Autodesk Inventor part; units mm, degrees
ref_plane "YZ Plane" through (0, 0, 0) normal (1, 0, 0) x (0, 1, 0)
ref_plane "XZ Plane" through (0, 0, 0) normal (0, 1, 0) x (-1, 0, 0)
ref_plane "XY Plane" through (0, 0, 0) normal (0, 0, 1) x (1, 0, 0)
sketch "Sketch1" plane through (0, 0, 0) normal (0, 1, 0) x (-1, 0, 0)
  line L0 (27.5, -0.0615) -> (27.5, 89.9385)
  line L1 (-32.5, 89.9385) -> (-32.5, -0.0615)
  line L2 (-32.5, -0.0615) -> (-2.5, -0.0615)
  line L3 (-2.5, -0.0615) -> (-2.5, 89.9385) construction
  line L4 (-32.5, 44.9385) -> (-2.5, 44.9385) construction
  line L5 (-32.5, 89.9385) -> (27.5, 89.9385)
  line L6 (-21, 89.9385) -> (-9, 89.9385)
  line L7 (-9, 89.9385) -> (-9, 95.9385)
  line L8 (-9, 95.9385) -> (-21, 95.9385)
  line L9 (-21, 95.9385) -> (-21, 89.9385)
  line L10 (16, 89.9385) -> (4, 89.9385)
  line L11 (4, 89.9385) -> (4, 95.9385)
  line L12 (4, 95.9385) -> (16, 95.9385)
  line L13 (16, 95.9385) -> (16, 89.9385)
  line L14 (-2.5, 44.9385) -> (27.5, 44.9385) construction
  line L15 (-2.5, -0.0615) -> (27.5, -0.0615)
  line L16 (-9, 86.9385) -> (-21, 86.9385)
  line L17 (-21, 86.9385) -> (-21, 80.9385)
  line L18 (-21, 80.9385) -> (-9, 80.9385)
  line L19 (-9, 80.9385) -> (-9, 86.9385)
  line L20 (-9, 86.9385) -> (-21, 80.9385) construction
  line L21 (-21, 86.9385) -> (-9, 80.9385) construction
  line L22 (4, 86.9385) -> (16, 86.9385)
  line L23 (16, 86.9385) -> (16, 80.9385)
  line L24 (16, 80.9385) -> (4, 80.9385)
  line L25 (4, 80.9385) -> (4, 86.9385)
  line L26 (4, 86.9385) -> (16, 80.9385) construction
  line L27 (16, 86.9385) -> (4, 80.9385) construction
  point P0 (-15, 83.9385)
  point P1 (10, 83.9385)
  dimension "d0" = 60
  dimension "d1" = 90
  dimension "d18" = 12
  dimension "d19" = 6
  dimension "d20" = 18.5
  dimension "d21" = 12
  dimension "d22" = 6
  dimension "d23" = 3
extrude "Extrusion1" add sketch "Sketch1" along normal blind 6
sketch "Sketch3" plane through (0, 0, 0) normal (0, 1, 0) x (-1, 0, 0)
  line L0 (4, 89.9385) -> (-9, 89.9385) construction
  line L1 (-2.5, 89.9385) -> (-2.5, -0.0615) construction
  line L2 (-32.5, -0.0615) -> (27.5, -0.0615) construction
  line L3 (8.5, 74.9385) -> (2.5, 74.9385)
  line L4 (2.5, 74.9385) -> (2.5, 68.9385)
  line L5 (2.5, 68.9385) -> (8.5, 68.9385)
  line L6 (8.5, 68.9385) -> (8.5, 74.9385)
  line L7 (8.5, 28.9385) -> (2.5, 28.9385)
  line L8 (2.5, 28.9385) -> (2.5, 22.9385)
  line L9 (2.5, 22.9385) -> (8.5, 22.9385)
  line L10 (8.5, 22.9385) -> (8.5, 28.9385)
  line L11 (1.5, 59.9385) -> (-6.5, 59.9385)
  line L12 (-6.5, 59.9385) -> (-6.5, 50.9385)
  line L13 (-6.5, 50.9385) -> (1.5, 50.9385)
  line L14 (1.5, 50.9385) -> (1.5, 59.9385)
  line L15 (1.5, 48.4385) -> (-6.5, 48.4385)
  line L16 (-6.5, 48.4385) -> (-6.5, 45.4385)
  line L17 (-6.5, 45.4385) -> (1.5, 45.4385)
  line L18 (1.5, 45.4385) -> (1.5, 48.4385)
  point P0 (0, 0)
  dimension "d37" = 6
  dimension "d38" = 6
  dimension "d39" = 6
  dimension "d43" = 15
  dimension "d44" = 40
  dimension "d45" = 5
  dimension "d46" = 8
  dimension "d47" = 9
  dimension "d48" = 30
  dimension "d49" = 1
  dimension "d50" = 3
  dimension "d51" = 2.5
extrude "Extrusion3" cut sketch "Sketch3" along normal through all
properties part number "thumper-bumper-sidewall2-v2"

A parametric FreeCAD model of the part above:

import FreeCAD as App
import Part
import Sketcher
Q = App.Units.Quantity

doc = App.newDocument("Part")
params = doc.addObject("Spreadsheet::Sheet", "Params")
for row, (alias, value) in enumerate([
    ("sketch1_width", "12 mm"),
    ("sketch1_width2", "60 mm"),
    ("sketch1_height", "90 mm"),
    ("sketch1_height2", "6 mm"),
    ("sketch1_width3", "13 mm"),
    ("pad1_length", "6 mm"),
    ("sketch2_width", "6 mm"),
    ("sketch2_width2", "8 mm"),
    ("sketch2_height", "9 mm"),
    ("sketch2_height2", "3 mm"),
], start=1):
    params.set(f"A{row}", alias)
    params.set(f"B{row}", "=" + value)
    params.setAlias(f"B{row}", alias)

body = doc.addObject("PartDesign::Body", "Body")

# Sketch on XZ plane
sketch1 = body.newObject("Sketcher::SketchObject", "Sketch")
sketch1.AttachmentSupport = (doc.getObject("XZ_Plane"), [""])
sketch1.MapMode = "FlatFace"
sketch1.addGeometry(Part.LineSegment(App.Vector(-28, 0, 0), App.Vector(-28, 90, 0)), False)
sketch1.addGeometry(Part.LineSegment(App.Vector(-28, 90, 0), App.Vector(-16, 90, 0)), False)
sketch1.addGeometry(Part.LineSegment(App.Vector(-16, 90, 0), App.Vector(-16, 96, 0)), False)
sketch1.addGeometry(Part.LineSegment(App.Vector(-16, 96, 0), App.Vector(-4, 96, 0)), False)
sketch1.addGeometry(Part.LineSegment(App.Vector(-4, 96, 0), App.Vector(-4, 90, 0)), False)
sketch1.addGeometry(Part.LineSegment(App.Vector(-4, 90, 0), App.Vector(9, 90, 0)), False)
sketch1.addGeometry(Part.LineSegment(App.Vector(9, 90, 0), App.Vector(9, 96, 0)), False)
sketch1.addGeometry(Part.LineSegment(App.Vector(9, 96, 0), App.Vector(21, 96, 0)), False)
sketch1.addGeometry(Part.LineSegment(App.Vector(21, 96, 0), App.Vector(21, 90, 0)), False)
sketch1.addGeometry(Part.LineSegment(App.Vector(21, 90, 0), App.Vector(32, 90, 0)), False)
sketch1.addGeometry(Part.LineSegment(App.Vector(32, 90, 0), App.Vector(32, 0, 0)), False)
sketch1.addGeometry(Part.LineSegment(App.Vector(32, 0, 0), App.Vector(-28, 0, 0)), False)
sketch1.addGeometry(Part.LineSegment(App.Vector(21, 87, 0), App.Vector(9, 87, 0)), False)
sketch1.addGeometry(Part.LineSegment(App.Vector(9, 87, 0), App.Vector(9, 81, 0)), False)
sketch1.addGeometry(Part.LineSegment(App.Vector(9, 81, 0), App.Vector(21, 81, 0)), False)
sketch1.addGeometry(Part.LineSegment(App.Vector(21, 81, 0), App.Vector(21, 87, 0)), False)
sketch1.addGeometry(Part.LineSegment(App.Vector(-4, 81, 0), App.Vector(-4, 87, 0)), False)
sketch1.addGeometry(Part.LineSegment(App.Vector(-4, 87, 0), App.Vector(-16, 87, 0)), False)
sketch1.addGeometry(Part.LineSegment(App.Vector(-16, 87, 0), App.Vector(-16, 81, 0)), False)
sketch1.addGeometry(Part.LineSegment(App.Vector(-16, 81, 0), App.Vector(-4, 81, 0)), False)
sketch1.addConstraint(Sketcher.Constraint("Coincident", 0, 2, 1, 1))
sketch1.addConstraint(Sketcher.Constraint("Coincident", 1, 2, 2, 1))
sketch1.addConstraint(Sketcher.Constraint("Coincident", 2, 2, 3, 1))
sketch1.addConstraint(Sketcher.Constraint("Coincident", 3, 2, 4, 1))
sketch1.addConstraint(Sketcher.Constraint("Coincident", 4, 2, 5, 1))
sketch1.addConstraint(Sketcher.Constraint("Coincident", 5, 2, 6, 1))
sketch1.addConstraint(Sketcher.Constraint("Coincident", 6, 2, 7, 1))
sketch1.addConstraint(Sketcher.Constraint("Coincident", 7, 2, 8, 1))
sketch1.addConstraint(Sketcher.Constraint("Coincident", 8, 2, 9, 1))
sketch1.addConstraint(Sketcher.Constraint("Coincident", 9, 2, 10, 1))
sketch1.addConstraint(Sketcher.Constraint("Coincident", 10, 2, 11, 1))
sketch1.addConstraint(Sketcher.Constraint("Coincident", 11, 2, 0, 1))
sketch1.addConstraint(Sketcher.Constraint("Coincident", 12, 2, 13, 1))
sketch1.addConstraint(Sketcher.Constraint("Coincident", 13, 2, 14, 1))
sketch1.addConstraint(Sketcher.Constraint("Coincident", 14, 2, 15, 1))
sketch1.addConstraint(Sketcher.Constraint("Coincident", 15, 2, 12, 1))
sketch1.addConstraint(Sketcher.Constraint("Coincident", 16, 2, 17, 1))
sketch1.addConstraint(Sketcher.Constraint("Coincident", 17, 2, 18, 1))
sketch1.addConstraint(Sketcher.Constraint("Coincident", 18, 2, 19, 1))
sketch1.addConstraint(Sketcher.Constraint("Coincident", 19, 2, 16, 1))
sketch1.addConstraint(Sketcher.Constraint("Vertical", 0))
sketch1.addConstraint(Sketcher.Constraint("Horizontal", 1))
sketch1.addConstraint(Sketcher.Constraint("Vertical", 2))
sketch1.addConstraint(Sketcher.Constraint("Horizontal", 3))
sketch1.addConstraint(Sketcher.Constraint("Vertical", 4))
sketch1.addConstraint(Sketcher.Constraint("Horizontal", 5))
sketch1.addConstraint(Sketcher.Constraint("Vertical", 6))
sketch1.addConstraint(Sketcher.Constraint("Horizontal", 7))
sketch1.addConstraint(Sketcher.Constraint("Vertical", 8))
sketch1.addConstraint(Sketcher.Constraint("Horizontal", 9))
sketch1.addConstraint(Sketcher.Constraint("Vertical", 10))
sketch1.addConstraint(Sketcher.Constraint("Horizontal", 11))
sketch1.addConstraint(Sketcher.Constraint("Horizontal", 12))
sketch1.addConstraint(Sketcher.Constraint("Vertical", 13))
sketch1.addConstraint(Sketcher.Constraint("Horizontal", 14))
sketch1.addConstraint(Sketcher.Constraint("Vertical", 15))
sketch1.addConstraint(Sketcher.Constraint("Vertical", 16))
sketch1.addConstraint(Sketcher.Constraint("Horizontal", 17))
sketch1.addConstraint(Sketcher.Constraint("Vertical", 18))
sketch1.addConstraint(Sketcher.Constraint("Horizontal", 19))
sketch1.addConstraint(Sketcher.Constraint("Horizontal", 1, 2, 4, 2))
sketch1.addConstraint(Sketcher.Constraint("Horizontal", 3, 2, 6, 2))
sketch1.addConstraint(Sketcher.Constraint("Horizontal", 5, 2, 8, 2))
sketch1.addConstraint(Sketcher.Constraint("Horizontal", 15, 2, 16, 2))
sketch1.addConstraint(Sketcher.Constraint("Horizontal", 14, 2, 18, 2))
sketch1.addConstraint(Sketcher.Constraint("Vertical", 6, 2, 12, 2))
sketch1.addConstraint(Sketcher.Constraint("Vertical", 8, 2, 14, 2))
sketch1.addConstraint(Sketcher.Constraint("Vertical", 4, 2, 16, 2))
sketch1.addConstraint(Sketcher.Constraint("Vertical", 2, 2, 17, 2))
sketch1.addConstraint(Sketcher.Constraint("Equal", 3, 7))
sketch1.addConstraint(Sketcher.Constraint("Equal", 1, 9))
sketch1.addConstraint(Sketcher.Constraint("Equal", 8, 13))
sketch1.addConstraint(Sketcher.Constraint("DistanceX", 3, 1, 3, 2, Q("12 mm")))
sketch1.addConstraint(Sketcher.Constraint("DistanceX", 11, 2, 11, 1, Q("60 mm")))
sketch1.addConstraint(Sketcher.Constraint("DistanceY", 0, 1, 0, 2, Q("90 mm")))
sketch1.addConstraint(Sketcher.Constraint("DistanceY", 2, 1, 2, 2, Q("6 mm")))
sketch1.addConstraint(Sketcher.Constraint("DistanceY", 12, 2, 5, 2, Q("3 mm")))
sketch1.addConstraint(Sketcher.Constraint("DistanceX", 5, 1, 5, 2, Q("13 mm")))
sketch1.addConstraint(Sketcher.Constraint("DistanceX", 1, 2, -1, 1, Q("16 mm")))
sketch1.addConstraint(Sketcher.Constraint("DistanceY", -1, 1, 0, 2, Q("89.9385 mm")))
sketch1.setExpression("Constraints[52]", "Params.sketch1_width")
sketch1.setExpression("Constraints[53]", "Params.sketch1_width2")
sketch1.setExpression("Constraints[54]", "Params.sketch1_height")
sketch1.setExpression("Constraints[55]", "Params.sketch1_height2")
sketch1.setExpression("Constraints[57]", "Params.sketch1_width3")
pad1 = body.newObject("PartDesign::Pad", "Pad")
pad1.Profile = sketch1
pad1.setExpression("Length", "Params.pad1_length")
pad1.Reversed = True

# Sketch on XZ plane
sketch2 = body.newObject("Sketcher::SketchObject", "Sketch001")
sketch2.AttachmentSupport = (doc.getObject("XZ_Plane"), [""])
sketch2.MapMode = "FlatFace"
sketch2.addGeometry(Part.LineSegment(App.Vector(-8.5, 68.9, 0), App.Vector(-8.5, 74.9, 0)), False)
sketch2.addGeometry(Part.LineSegment(App.Vector(-8.5, 74.9, 0), App.Vector(-2.5, 74.9, 0)), False)
sketch2.addGeometry(Part.LineSegment(App.Vector(-2.5, 74.9, 0), App.Vector(-2.5, 68.9, 0)), False)
sketch2.addGeometry(Part.LineSegment(App.Vector(-2.5, 68.9, 0), App.Vector(-8.5, 68.9, 0)), False)
sketch2.addGeometry(Part.LineSegment(App.Vector(-8.5, 22.9, 0), App.Vector(-8.5, 28.9, 0)), False)
sketch2.addGeometry(Part.LineSegment(App.Vector(-8.5, 28.9, 0), App.Vector(-2.5, 28.9, 0)), False)
sketch2.addGeometry(Part.LineSegment(App.Vector(-2.5, 28.9, 0), App.Vector(-2.5, 22.9, 0)), False)
sketch2.addGeometry(Part.LineSegment(App.Vector(-2.5, 22.9, 0), App.Vector(-8.5, 22.9, 0)), False)
sketch2.addGeometry(Part.LineSegment(App.Vector(-1.5, 50.9, 0), App.Vector(-1.5, 59.9, 0)), False)
sketch2.addGeometry(Part.LineSegment(App.Vector(-1.5, 59.9, 0), App.Vector(6.5, 59.9, 0)), False)
sketch2.addGeometry(Part.LineSegment(App.Vector(6.5, 59.9, 0), App.Vector(6.5, 50.9, 0)), False)
sketch2.addGeometry(Part.LineSegment(App.Vector(6.5, 50.9, 0), App.Vector(-1.5, 50.9, 0)), False)
sketch2.addGeometry(Part.LineSegment(App.Vector(-1.5, 45.4, 0), App.Vector(-1.5, 48.4, 0)), False)
sketch2.addGeometry(Part.LineSegment(App.Vector(-1.5, 48.4, 0), App.Vector(6.5, 48.4, 0)), False)
sketch2.addGeometry(Part.LineSegment(App.Vector(6.5, 48.4, 0), App.Vector(6.5, 45.4, 0)), False)
sketch2.addGeometry(Part.LineSegment(App.Vector(6.5, 45.4, 0), App.Vector(-1.5, 45.4, 0)), False)
sketch2.addConstraint(Sketcher.Constraint("Coincident", 0, 2, 1, 1))
sketch2.addConstraint(Sketcher.Constraint("Coincident", 1, 2, 2, 1))
sketch2.addConstraint(Sketcher.Constraint("Coincident", 2, 2, 3, 1))
sketch2.addConstraint(Sketcher.Constraint("Coincident", 3, 2, 0, 1))
sketch2.addConstraint(Sketcher.Constraint("Coincident", 4, 2, 5, 1))
sketch2.addConstraint(Sketcher.Constraint("Coincident", 5, 2, 6, 1))
sketch2.addConstraint(Sketcher.Constraint("Coincident", 6, 2, 7, 1))
sketch2.addConstraint(Sketcher.Constraint("Coincident", 7, 2, 4, 1))
sketch2.addConstraint(Sketcher.Constraint("Coincident", 8, 2, 9, 1))
sketch2.addConstraint(Sketcher.Constraint("Coincident", 9, 2, 10, 1))
sketch2.addConstraint(Sketcher.Constraint("Coincident", 10, 2, 11, 1))
sketch2.addConstraint(Sketcher.Constraint("Coincident", 11, 2, 8, 1))
sketch2.addConstraint(Sketcher.Constraint("Coincident", 12, 2, 13, 1))
sketch2.addConstraint(Sketcher.Constraint("Coincident", 13, 2, 14, 1))
sketch2.addConstraint(Sketcher.Constraint("Coincident", 14, 2, 15, 1))
sketch2.addConstraint(Sketcher.Constraint("Coincident", 15, 2, 12, 1))
sketch2.addConstraint(Sketcher.Constraint("Vertical", 0))
sketch2.addConstraint(Sketcher.Constraint("Horizontal", 1))
sketch2.addConstraint(Sketcher.Constraint("Vertical", 2))
sketch2.addConstraint(Sketcher.Constraint("Horizontal", 3))
sketch2.addConstraint(Sketcher.Constraint("Vertical", 4))
sketch2.addConstraint(Sketcher.Constraint("Horizontal", 5))
sketch2.addConstraint(Sketcher.Constraint("Vertical", 6))
sketch2.addConstraint(Sketcher.Constraint("Horizontal", 7))
sketch2.addConstraint(Sketcher.Constraint("Vertical", 8))
sketch2.addConstraint(Sketcher.Constraint("Horizontal", 9))
sketch2.addConstraint(Sketcher.Constraint("Vertical", 10))
sketch2.addConstraint(Sketcher.Constraint("Horizontal", 11))
sketch2.addConstraint(Sketcher.Constraint("Vertical", 12))
sketch2.addConstraint(Sketcher.Constraint("Horizontal", 13))
sketch2.addConstraint(Sketcher.Constraint("Vertical", 14))
sketch2.addConstraint(Sketcher.Constraint("Horizontal", 15))
sketch2.addConstraint(Sketcher.Constraint("Vertical", 3, 2, 4, 2))
sketch2.addConstraint(Sketcher.Constraint("Vertical", 2, 2, 5, 2))
sketch2.addConstraint(Sketcher.Constraint("Vertical", 11, 2, 12, 2))
sketch2.addConstraint(Sketcher.Constraint("Vertical", 10, 2, 13, 2))
sketch2.addConstraint(Sketcher.Constraint("Equal", 7, 0))
sketch2.addConstraint(Sketcher.Constraint("Equal", 2, 4))
sketch2.addConstraint(Sketcher.Constraint("DistanceX", 1, 1, 1, 2, Q("6 mm")))
sketch2.addConstraint(Sketcher.Constraint("DistanceX", 9, 1, 9, 2, Q("8 mm")))
sketch2.addConstraint(Sketcher.Constraint("DistanceY", 8, 1, 8, 2, Q("9 mm")))
sketch2.addConstraint(Sketcher.Constraint("DistanceY", 12, 1, 12, 2, Q("3 mm")))
sketch2.addConstraint(Sketcher.Constraint("DistanceY", 4, 2, 3, 2, Q("40 mm")))
sketch2.addConstraint(Sketcher.Constraint("DistanceX", 2, 2, 8, 2, Q("1 mm")))
sketch2.addConstraint(Sketcher.Constraint("DistanceY", 8, 2, 2, 2, Q("9 mm")))
sketch2.addConstraint(Sketcher.Constraint("DistanceX", 1, 2, -1, 1, Q("2.5 mm")))
sketch2.addConstraint(Sketcher.Constraint("DistanceY", 12, 2, 11, 2, Q("2.5 mm")))
sketch2.addConstraint(Sketcher.Constraint("DistanceY", -1, 1, 0, 2, Q("74.9385 mm")))
sketch2.setExpression("Constraints[38]", "Params.sketch2_width")
sketch2.setExpression("Constraints[39]", "Params.sketch2_width2")
sketch2.setExpression("Constraints[40]", "Params.sketch2_height")
sketch2.setExpression("Constraints[41]", "Params.sketch2_height2")
pocket1 = body.newObject("PartDesign::Pocket", "Pocket")
pocket1.Profile = sketch2
pocket1.Type = "ThroughAll"

doc.recompute()
